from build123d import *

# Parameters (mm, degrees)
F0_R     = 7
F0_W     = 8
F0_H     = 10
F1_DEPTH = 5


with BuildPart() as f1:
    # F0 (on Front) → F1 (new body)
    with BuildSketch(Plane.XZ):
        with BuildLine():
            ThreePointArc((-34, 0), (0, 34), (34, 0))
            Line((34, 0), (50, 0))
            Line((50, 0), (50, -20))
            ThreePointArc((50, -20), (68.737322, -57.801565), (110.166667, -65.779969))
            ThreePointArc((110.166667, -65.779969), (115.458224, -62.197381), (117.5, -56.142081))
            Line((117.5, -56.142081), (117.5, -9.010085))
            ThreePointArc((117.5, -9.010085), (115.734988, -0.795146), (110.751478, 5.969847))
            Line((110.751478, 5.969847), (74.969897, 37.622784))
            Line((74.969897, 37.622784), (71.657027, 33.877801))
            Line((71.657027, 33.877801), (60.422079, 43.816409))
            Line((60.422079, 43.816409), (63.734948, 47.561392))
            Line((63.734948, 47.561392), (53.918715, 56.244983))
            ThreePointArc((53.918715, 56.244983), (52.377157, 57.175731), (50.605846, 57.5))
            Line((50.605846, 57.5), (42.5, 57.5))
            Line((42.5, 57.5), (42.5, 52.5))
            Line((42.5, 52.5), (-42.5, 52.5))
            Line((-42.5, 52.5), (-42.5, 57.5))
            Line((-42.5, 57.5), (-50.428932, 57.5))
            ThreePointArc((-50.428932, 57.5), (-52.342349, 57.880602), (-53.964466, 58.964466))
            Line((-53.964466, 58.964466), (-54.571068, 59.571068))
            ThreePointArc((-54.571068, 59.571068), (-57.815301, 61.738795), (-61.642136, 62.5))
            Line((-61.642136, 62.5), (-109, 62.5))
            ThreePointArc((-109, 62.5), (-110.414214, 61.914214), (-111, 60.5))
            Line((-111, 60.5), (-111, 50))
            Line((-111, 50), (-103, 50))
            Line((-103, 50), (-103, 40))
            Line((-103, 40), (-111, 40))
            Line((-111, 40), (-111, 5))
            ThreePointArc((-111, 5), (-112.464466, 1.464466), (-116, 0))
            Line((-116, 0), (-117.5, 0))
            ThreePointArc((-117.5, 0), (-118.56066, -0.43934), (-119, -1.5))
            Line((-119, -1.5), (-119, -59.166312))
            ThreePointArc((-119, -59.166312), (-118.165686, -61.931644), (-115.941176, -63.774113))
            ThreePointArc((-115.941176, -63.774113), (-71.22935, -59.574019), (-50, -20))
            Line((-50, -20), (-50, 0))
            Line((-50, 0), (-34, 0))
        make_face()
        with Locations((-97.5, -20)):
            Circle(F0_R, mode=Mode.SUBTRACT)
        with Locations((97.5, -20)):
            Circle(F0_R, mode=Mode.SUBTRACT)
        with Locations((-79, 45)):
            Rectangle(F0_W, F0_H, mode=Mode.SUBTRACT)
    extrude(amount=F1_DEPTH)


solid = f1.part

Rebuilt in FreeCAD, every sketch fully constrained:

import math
import FreeCAD as App
import Part
import Sketcher
from FreeCAD import Vector
Q = App.Units.Quantity


def add_polygon(sketch, points):
    """Adds a closed chain of lines whose ends are joined by coincident constraints."""
    first, n = sketch.GeometryCount, len(points)
    for a, b in zip(points, points[1:] + points[:1]):
        sketch.addGeometry(Part.LineSegment(App.Vector(*a, 0), App.Vector(*b, 0)), False)
    for i in range(n):
        sketch.addConstraint(Sketcher.Constraint("Coincident", first + i, 2, first + (i + 1) % n, 1))

doc = App.newDocument("Part")
body = doc.addObject("PartDesign::Body", "Body")

sketch1 = doc.addObject("Sketcher::SketchObject", "Sketch")
body.addObject(sketch1)
sketch1.AttachmentSupport = (doc.XZ_Plane, [""])
sketch1.MapMode = "FlatFace"
sketch1.addGeometry(Part.ArcOfCircle(Part.Circle(Vector(0, 0, 0), Vector(0, 0, 1), 34), math.radians(0), math.radians(180)), False)
sketch1.addGeometry(Part.LineSegment(Vector(34, 0, 0), Vector(50, 0, 0)), False)
sketch1.addGeometry(Part.LineSegment(Vector(50, 0, 0), Vector(50, -20, 0)), False)
sketch1.addGeometry(Part.ArcOfCircle(Part.Circle(Vector(97.5, -20, 0), Vector(0, 0, 1), 47.5), math.radians(-180), math.radians(-75)), False)
sketch1.addGeometry(Part.ArcOfCircle(Part.Circle(Vector(107.5, -56.1, 0), Vector(0, 0, 1), 10), math.radians(-75), math.radians(0)), False)
sketch1.addGeometry(Part.LineSegment(Vector(117.5, -56.1, 0), Vector(117.5, -9, 0)), False)
sketch1.addGeometry(Part.ArcOfCircle(Part.Circle(Vector(97.5, -9, 0), Vector(0, 0, 1), 20), math.radians(0), math.radians(49)), False)
sketch1.addGeometry(Part.LineSegment(Vector(110.8, 6, 0), Vector(75, 37.6, 0)), False)
sketch1.addGeometry(Part.LineSegment(Vector(75, 37.6, 0), Vector(71.7, 33.9, 0)), False)
sketch1.addGeometry(Part.LineSegment(Vector(71.7, 33.9, 0), Vector(60.4, 43.8, 0)), False)
sketch1.addGeometry(Part.LineSegment(Vector(60.4, 43.8, 0), Vector(63.7, 47.6, 0)), False)
sketch1.addGeometry(Part.LineSegment(Vector(63.7, 47.6, 0), Vector(53.9, 56.2, 0)), False)
sketch1.addGeometry(Part.ArcOfCircle(Part.Circle(Vector(50.6, 52.5, 0), Vector(0, 0, 1), 5), math.radians(49), math.radians(90)), False)
sketch1.addGeometry(Part.LineSegment(Vector(50.6, 57.5, 0), Vector(42.5, 57.5, 0)), False)
sketch1.addGeometry(Part.LineSegment(Vector(42.5, 57.5, 0), Vector(42.5, 52.5, 0)), False)
sketch1.addGeometry(Part.LineSegment(Vector(42.5, 52.5, 0), Vector(-42.5, 52.5, 0)), False)
sketch1.addGeometry(Part.LineSegment(Vector(-42.5, 52.5, 0), Vector(-42.5, 57.5, 0)), False)
sketch1.addGeometry(Part.LineSegment(Vector(-42.5, 57.5, 0), Vector(-50.4, 57.5, 0)), False)
sketch1.addGeometry(Part.ArcOfCircle(Part.Circle(Vector(-50.4, 62.5, 0), Vector(0, 0, 1), 5), math.radians(-135), math.radians(-90)), False)
sketch1.addGeometry(Part.LineSegment(Vector(-54, 59, 0), Vector(-54.6, 59.6, 0)), False)
sketch1.addGeometry(Part.ArcOfCircle(Part.Circle(Vector(-61.6, 52.5, 0), Vector(0, 0, 1), 10), math.radians(45), math.radians(90)), False)
sketch1.addGeometry(Part.LineSegment(Vector(-61.6, 62.5, 0), Vector(-109, 62.5, 0)), False)
sketch1.addGeometry(Part.ArcOfCircle(Part.Circle(Vector(-109, 60.5, 0), Vector(0, 0, 1), 2), math.radians(90), math.radians(180)), False)
sketch1.addGeometry(Part.LineSegment(Vector(-111, 60.5, 0), Vector(-111, 50, 0)), False)
sketch1.addGeometry(Part.LineSegment(Vector(-111, 50, 0), Vector(-103, 50, 0)), False)
sketch1.addGeometry(Part.LineSegment(Vector(-103, 50, 0), Vector(-103, 40, 0)), False)
sketch1.addGeometry(Part.LineSegment(Vector(-103, 40, 0), Vector(-111, 40, 0)), False)
sketch1.addGeometry(Part.LineSegment(Vector(-111, 40, 0), Vector(-111, 5, 0)), False)
sketch1.addGeometry(Part.ArcOfCircle(Part.Circle(Vector(-116, 5, 0), Vector(0, 0, 1), 5), math.radians(-90), math.radians(0)), False)
sketch1.addGeometry(Part.LineSegment(Vector(-116, 0, 0), Vector(-117.5, 0, 0)), False)
sketch1.addGeometry(Part.ArcOfCircle(Part.Circle(Vector(-117.5, -1.5, 0), Vector(0, 0, 1), 1.5), math.radians(90), math.radians(180)), False)
sketch1.addGeometry(Part.LineSegment(Vector(-119, -1.5, 0), Vector(-119, -59.2, 0)), False)
sketch1.addGeometry(Part.ArcOfCircle(Part.Circle(Vector(-114, -59.2, 0), Vector(0, 0, 1), 5), math.radians(180), math.radians(247)), False)
sketch1.addGeometry(Part.ArcOfCircle(Part.Circle(Vector(-97.5, -20, 0), Vector(0, 0, 1), 47.5), math.radians(-113), math.radians(0)), False)
sketch1.addGeometry(Part.LineSegment(Vector(-50, -20, 0), Vector(-50, 0, 0)), False)
sketch1.addGeometry(Part.LineSegment(Vector(-50, 0, 0), Vector(-34, 0, 0)), False)
sketch1.addGeometry(Part.Circle(Vector(-97.5, -20, 0), Vector(0, 0, 1), 7), False)
sketch1.addGeometry(Part.Circle(Vector(97.5, -20, 0), Vector(0, 0, 1), 7), False)
add_polygon(sketch1, [(-75, 40), (-83, 40), (-83, 50), (-75, 50)])
sketch1.addConstraint([
    Sketcher.Constraint("Coincident", 0, 1, 1, 1),
    Sketcher.Constraint("Coincident", 1, 2, 2, 1),
    Sketcher.Constraint("Tangent", 2, 2, 3, 1),
    Sketcher.Constraint("Tangent", 3, 2, 4, 1),
    Sketcher.Constraint("Tangent", 4, 2, 5, 1),
    Sketcher.Constraint("Tangent", 5, 2, 6, 1),
    Sketcher.Constraint("Tangent", 6, 2, 7, 1),
    Sketcher.Constraint("Coincident", 7, 2, 8, 1),
    Sketcher.Constraint("Coincident", 8, 2, 9, 1),
    Sketcher.Constraint("Coincident", 9, 2, 10, 1),
    Sketcher.Constraint("Coincident", 10, 2, 11, 1),
    Sketcher.Constraint("Tangent", 11, 2, 12, 1),
    Sketcher.Constraint("Tangent", 12, 2, 13, 1),
    Sketcher.Constraint("Coincident", 13, 2, 14, 1),
    Sketcher.Constraint("Coincident", 14, 2, 15, 1),
    Sketcher.Constraint("Coincident", 15, 2, 16, 1),
    Sketcher.Constraint("Coincident", 16, 2, 17, 1),
    Sketcher.Constraint("Tangent", 17, 2, 18, 2),
    Sketcher.Constraint("Tangent", 18, 1, 19, 1),
    Sketcher.Constraint("Tangent", 19, 2, 20, 1),
    Sketcher.Constraint("Tangent", 20, 2, 21, 1),
    Sketcher.Constraint("Tangent", 21, 2, 22, 1),
    Sketcher.Constraint("Tangent", 22, 2, 23, 1),
    Sketcher.Constraint("Coincident", 23, 2, 24, 1),
    Sketcher.Constraint("Coincident", 24, 2, 25, 1),
    Sketcher.Constraint("Coincident", 25, 2, 26, 1),
    Sketcher.Constraint("Coincident", 26, 2, 27, 1),
    Sketcher.Constraint("Tangent", 27, 2, 28, 2),
    Sketcher.Constraint("Tangent", 28, 1, 29, 1),
    Sketcher.Constraint("Tangent", 29, 2, 30, 1),
    Sketcher.Constraint("Tangent", 30, 2, 31, 1),
    Sketcher.Constraint("Tangent", 31, 2, 32, 1),
    Sketcher.Constraint("Tangent", 32, 2, 33, 1),
    Sketcher.Constraint("Tangent", 33, 2, 34, 1),
    Sketcher.Constraint("Coincident", 34, 2, 35, 1),
    Sketcher.Constraint("Coincident", 35, 2, 0, 2),
    Sketcher.Constraint("Horizontal", 1),
    Sketcher.Constraint("Vertical", 2),
    Sketcher.Constraint("Vertical", 5),
    Sketcher.Constraint("Horizontal", 13),
    Sketcher.Constraint("Vertical", 14),
    Sketcher.Constraint("Horizontal", 15),
    Sketcher.Constraint("Vertical", 16),
    Sketcher.Constraint("Horizontal", 17),
    Sketcher.Constraint("Horizontal", 21),
    Sketcher.Constraint("Vertical", 23),
    Sketcher.Constraint("Horizontal", 24),
    Sketcher.Constraint("Vertical", 25),
    Sketcher.Constraint("Horizontal", 26),
    Sketcher.Constraint("Vertical", 27),
    Sketcher.Constraint("Horizontal", 29),
    Sketcher.Constraint("Vertical", 31),
    Sketcher.Constraint("Vertical", 34),
    Sketcher.Constraint("Horizontal", 35),
    Sketcher.Constraint("Horizontal", 38),
    Sketcher.Constraint("Vertical", 39),
    Sketcher.Constraint("Horizontal", 40),
    Sketcher.Constraint("Vertical", 41),
    Sketcher.Constraint("Coincident", 0, 3, -1, 1),
    Sketcher.Constraint("Coincident", 36, 3, 33, 3),
    Sketcher.Constraint("Coincident", 37, 3, 3, 3),
    Sketcher.Constraint("Equal", 4, 20),
    Sketcher.Constraint("Equal", 18, 28),
    Sketcher.Constraint("Equal", 28, 32),
    Sketcher.Constraint("Equal", 3, 33),
    Sketcher.Constraint("Equal", 36, 37),
    Sketcher.Constraint("Symmetric", 1, 2, 34, 2, -1, 1),
    Sketcher.Constraint("Symmetric", 13, 2, 16, 2, -2),
    Sketcher.Constraint("PointOnObject", 0, 1, -1),
    Sketcher.Constraint("PointOnObject", 28, 1, -1),
    Sketcher.Constraint("Perpendicular", 7, 8),
    Sketcher.Constraint("Perpendicular", 8, 9),
    Sketcher.Constraint("Perpendicular", 9, 10),
    Sketcher.Constraint("Perpendicular", 10, 11),
    Sketcher.Constraint("Horizontal", 3, 3, 33, 3),
    Sketcher.Constraint("Horizontal", 26, 2, 38, 2),
    Sketcher.Constraint("Horizontal", 24, 2, 39, 2),
    Sketcher.Constraint("Vertical", 6, 3, 37, 3),
    Sketcher.Constraint("Vertical", 23, 2, 26, 2),
    Sketcher.Constraint("Equal", 26, 38),
    Sketcher.Constraint("Equal", 8, 10),
    Sketcher.Constraint("Diameter", 36, 14.0),
    Sketcher.Constraint("Radius", 0, 34.0),
    Sketcher.Constraint("Radius", 6, 20.000002),
    Sketcher.Constraint("Radius", 22, 1.999999),
    Sketcher.Constraint("Radius", 28, 5.0),
    Sketcher.Constraint("Radius", 3, 47.500001),
    Sketcher.Constraint("Radius", 30, 1.500001),
    Sketcher.Constraint("DistanceX", 1, 1, 1, 2, 16.0),
    Sketcher.Constraint("DistanceX", 15, 2, 15, 1, 85.0),
    Sketcher.Constraint("DistanceX", 24, 1, 24, 2, 8.0),
    Sketcher.Constraint("DistanceY", 2, 2, 2, 1, 20.0),
    Sketcher.Constraint("DistanceY", 14, 2, 14, 1, 5.0),
    Sketcher.Constraint("DistanceY", 25, 2, 25, 1, 10.0),
    Sketcher.Constraint("DistanceY", 27, 2, 27, 1, 35.0),
    Sketcher.Constraint("Angle", 19, Q("135 deg")),
    Sketcher.Constraint("Distance", 8, 5.000001),
    Sketcher.Constraint("Distance", 9, 15.0),
    Sketcher.Constraint("DistanceX", 29, 2, 29, 1, 1.5),
    Sketcher.Constraint("DistanceY", 23, 2, 23, 1, 10.5),
    Sketcher.Constraint("DistanceX", 22, 3, -1, 1, 109.000001),
    Sketcher.Constraint("DistanceX", 38, 2, -1, 1, 83.0),
    Sketcher.Constraint("DistanceX", 6, 3, 4, 3, 10.0),
    Sketcher.Constraint("DistanceY", 20, 3, 18, 3, 10.0),
    Sketcher.Constraint("Radius", 12, 4.999995),
    Sketcher.Constraint("DistanceY", -1, 1, 8, 2, 33.877801),
    Sketcher.Constraint("DistanceX", 7, 2, 6, 3, 22.530101),
    Sketcher.Constraint("DistanceX", 12, 3, 10, 2, 13.1291),
    Sketcher.Constraint("DistanceX", 17, 2, 17, 1, 7.928932),
])
pad1 = doc.addObject("PartDesign::Pad", "Pad")
body.addObject(pad1)
pad1.Profile = sketch1
pad1.Length = 5

doc.recompute()
